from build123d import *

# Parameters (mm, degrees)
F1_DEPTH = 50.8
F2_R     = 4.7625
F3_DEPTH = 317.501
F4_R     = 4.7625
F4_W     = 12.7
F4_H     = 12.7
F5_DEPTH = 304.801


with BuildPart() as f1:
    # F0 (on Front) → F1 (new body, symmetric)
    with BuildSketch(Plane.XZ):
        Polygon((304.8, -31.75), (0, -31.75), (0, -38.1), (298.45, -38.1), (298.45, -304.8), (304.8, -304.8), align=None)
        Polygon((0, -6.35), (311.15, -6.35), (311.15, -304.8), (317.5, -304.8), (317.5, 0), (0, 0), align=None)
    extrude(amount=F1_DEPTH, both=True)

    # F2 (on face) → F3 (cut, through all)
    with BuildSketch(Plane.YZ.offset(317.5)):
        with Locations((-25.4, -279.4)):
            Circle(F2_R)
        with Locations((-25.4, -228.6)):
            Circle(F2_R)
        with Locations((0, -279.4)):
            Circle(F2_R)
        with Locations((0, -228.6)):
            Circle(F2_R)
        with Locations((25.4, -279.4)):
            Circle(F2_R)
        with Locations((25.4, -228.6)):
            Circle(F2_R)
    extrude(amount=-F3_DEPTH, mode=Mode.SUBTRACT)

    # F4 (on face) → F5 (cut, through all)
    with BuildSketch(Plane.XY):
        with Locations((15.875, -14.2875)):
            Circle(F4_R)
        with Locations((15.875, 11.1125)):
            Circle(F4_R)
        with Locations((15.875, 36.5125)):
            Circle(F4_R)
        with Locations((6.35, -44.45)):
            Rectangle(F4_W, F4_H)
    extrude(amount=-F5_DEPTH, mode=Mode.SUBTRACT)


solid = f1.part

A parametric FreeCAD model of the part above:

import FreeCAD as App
import Part
import Sketcher

V = App.Vector
Q = App.Units.Quantity

doc = App.newDocument("Part")
body = doc.addObject("PartDesign::Body", "Body")
body.AllowCompound = True

sketch1 = body.newObject("Sketcher::SketchObject", "Sketch")
sketch1.AttachmentSupport = (doc.getObject("XZ_Plane"), [""])
sketch1.MapMode = "FlatFace"
sketch1.addGeometry(Part.LineSegment(V(304.8, -31.75, 0), V(0, -31.75, 0)), False)
sketch1.addGeometry(Part.LineSegment(V(0, -31.75, 0), V(0, -38.1, 0)), False)
sketch1.addGeometry(Part.LineSegment(V(0, -38.1, 0), V(298.45, -38.1, 0)), False)
sketch1.addGeometry(Part.LineSegment(V(298.45, -38.1, 0), V(298.45, -304.8, 0)), False)
sketch1.addGeometry(Part.LineSegment(V(298.45, -304.8, 0), V(304.8, -304.8, 0)), False)
sketch1.addGeometry(Part.LineSegment(V(304.8, -304.8, 0), V(304.8, -31.75, 0)), False)
sketch1.addGeometry(Part.LineSegment(V(0, -6.35, 0), V(311.15, -6.35, 0)), False)
sketch1.addGeometry(Part.LineSegment(V(311.15, -6.35, 0), V(311.15, -304.8, 0)), False)
sketch1.addGeometry(Part.LineSegment(V(311.15, -304.8, 0), V(317.5, -304.8, 0)), False)
sketch1.addGeometry(Part.LineSegment(V(317.5, -304.8, 0), V(317.5, 0, 0)), False)
sketch1.addGeometry(Part.LineSegment(V(317.5, 0, 0), V(0, 0, 0)), False)
sketch1.addGeometry(Part.LineSegment(V(0, 0, 0), V(0, -6.35, 0)), False)
sketch1.addConstraint(Sketcher.Constraint("Coincident", 0, 2, 1, 1))
sketch1.addConstraint(Sketcher.Constraint("Coincident", 1, 2, 2, 1))
sketch1.addConstraint(Sketcher.Constraint("Coincident", 2, 2, 3, 1))
sketch1.addConstraint(Sketcher.Constraint("Coincident", 3, 2, 4, 1))
sketch1.addConstraint(Sketcher.Constraint("Coincident", 4, 2, 5, 1))
sketch1.addConstraint(Sketcher.Constraint("Coincident", 5, 2, 0, 1))
sketch1.addConstraint(Sketcher.Constraint("Coincident", 6, 2, 7, 1))
sketch1.addConstraint(Sketcher.Constraint("Coincident", 7, 2, 8, 1))
sketch1.addConstraint(Sketcher.Constraint("Coincident", 8, 2, 9, 1))
sketch1.addConstraint(Sketcher.Constraint("Coincident", 9, 2, 10, 1))
sketch1.addConstraint(Sketcher.Constraint("Coincident", 10, 2, 11, 1))
sketch1.addConstraint(Sketcher.Constraint("Coincident", 11, 2, 6, 1))
sketch1.addConstraint(Sketcher.Constraint("Horizontal", 0))
sketch1.addConstraint(Sketcher.Constraint("Vertical", 1))
sketch1.addConstraint(Sketcher.Constraint("Horizontal", 2))
sketch1.addConstraint(Sketcher.Constraint("Vertical", 3))
sketch1.addConstraint(Sketcher.Constraint("Horizontal", 4))
sketch1.addConstraint(Sketcher.Constraint("Vertical", 5))
sketch1.addConstraint(Sketcher.Constraint("Horizontal", 6))
sketch1.addConstraint(Sketcher.Constraint("Vertical", 7))
sketch1.addConstraint(Sketcher.Constraint("Horizontal", 8))
sketch1.addConstraint(Sketcher.Constraint("Vertical", 9))
sketch1.addConstraint(Sketcher.Constraint("Horizontal", 10))
sketch1.addConstraint(Sketcher.Constraint("Vertical", 11))
sketch1.addConstraint(Sketcher.Constraint("Coincident", 10, 2, -1, 1))
sketch1.addConstraint(Sketcher.Constraint("PointOnObject", 0, 2, -2))
sketch1.addConstraint(Sketcher.Constraint("Horizontal", 4, 2, 7, 2))
sketch1.addConstraint(Sketcher.Constraint("Equal", 4, 8))
sketch1.addConstraint(Sketcher.Constraint("Equal", 8, 1))
sketch1.addConstraint(Sketcher.Constraint("Equal", 2, 7))
sketch1.addConstraint(Sketcher.Constraint("Equal", 0, 9))
sketch1.addConstraint(Sketcher.Constraint("DistanceX", 0, 2, 0, 1, Q("12 in")))
sketch1.addConstraint(Sketcher.Constraint("DistanceX", 10, 2, 10, 1, Q("12.5 in")))
sketch1.addConstraint(Sketcher.Constraint("DistanceY", 3, 2, 3, 1, Q("10.5 in")))
sketch1.addConstraint(Sketcher.Constraint("DistanceY", 5, 2, 6, 2, Q("1 in")))
pad1 = body.newObject("PartDesign::Pad", "Pad")
pad1.Profile = sketch1
pad1.Length = Q("4 in")
pad1.Midplane = True

sketch2 = body.newObject("Sketcher::SketchObject", "Sketch001")
sketch2.AttachmentSupport = (doc.getObject("YZ_Plane"), [""])
sketch2.MapMode = "FlatFace"
sketch2.AttachmentOffset = App.Placement(V(0, 0, 12.5 * 25.4), App.Rotation())
sketch2.addGeometry(Part.Circle(V(-25.4, -279.4, 0), V(0, 0, 1), 4.7625), False)
sketch2.addGeometry(Part.Circle(V(-25.4, -228.6, 0), V(0, 0, 1), 4.7625), False)
sketch2.addGeometry(Part.Circle(V(0, -279.4, 0), V(0, 0, 1), 4.7625), False)
sketch2.addGeometry(Part.Circle(V(0, -228.6, 0), V(0, 0, 1), 4.7625), False)
sketch2.addGeometry(Part.Circle(V(25.4, -279.4, 0), V(0, 0, 1), 4.7625), False)
sketch2.addGeometry(Part.Circle(V(25.4, -228.6, 0), V(0, 0, 1), 4.7625), False)
sketch2.addConstraint(Sketcher.Constraint("Equal", 0, 1))
sketch2.addConstraint(Sketcher.Constraint("Equal", 1, 2))
sketch2.addConstraint(Sketcher.Constraint("Equal", 2, 3))
sketch2.addConstraint(Sketcher.Constraint("Equal", 3, 4))
sketch2.addConstraint(Sketcher.Constraint("Equal", 4, 5))
sketch2.addConstraint(Sketcher.Constraint("Symmetric", 0, 3, 4, 3, -2))
sketch2.addConstraint(Sketcher.Constraint("Symmetric", 1, 3, 5, 3, -2))
sketch2.addConstraint(Sketcher.Constraint("PointOnObject", 2, 3, -2))
sketch2.addConstraint(Sketcher.Constraint("PointOnObject", 3, 3, -2))
sketch2.addConstraint(Sketcher.Constraint("Horizontal", 0, 3, 2, 3))
sketch2.addConstraint(Sketcher.Constraint("Horizontal", 1, 3, 3, 3))
sketch2.addConstraint(Sketcher.Constraint("Vertical", 0, 3, 1, 3))
sketch2.addConstraint(Sketcher.Constraint("Diameter", 0, Q("0.375 in")))
sketch2.addConstraint(Sketcher.Constraint("DistanceX", 0, 3, -1, 1, Q("1 in")))
sketch2.addConstraint(Sketcher.Constraint("DistanceY", 0, 3, -1, 1, Q("11 in")))
sketch2.addConstraint(Sketcher.Constraint("DistanceY", 1, 3, -1, 1, Q("9 in")))
pocket1 = body.newObject("PartDesign::Pocket", "Pocket")
pocket1.Profile = sketch2
pocket1.Type = "ThroughAll"

sketch3 = body.newObject("Sketcher::SketchObject", "Sketch002")
sketch3.AttachmentSupport = (doc.getObject("XY_Plane"), [""])
sketch3.MapMode = "FlatFace"
sketch3.addGeometry(Part.Circle(V(15.875, -14.2875, 0), V(0, 0, 1), 4.7625), False)
sketch3.addGeometry(Part.Circle(V(15.875, 11.1125, 0), V(0, 0, 1), 4.7625), False)
sketch3.addGeometry(Part.Circle(V(15.875, 36.5125, 0), V(0, 0, 1), 4.7625), False)
sketch3.addGeometry(Part.LineSegment(V(0, -38.1, 0), V(0, -50.8, 0)), False)
sketch3.addGeometry(Part.LineSegment(V(0, -50.8, 0), V(12.7, -50.8, 0)), False)
sketch3.addGeometry(Part.LineSegment(V(12.7, -50.8, 0), V(12.7, -38.1, 0)), False)
sketch3.addGeometry(Part.LineSegment(V(12.7, -38.1, 0), V(0, -38.1, 0)), False)
sketch3.addConstraint(Sketcher.Constraint("Coincident", 3, 2, 4, 1))
sketch3.addConstraint(Sketcher.Constraint("Coincident", 4, 2, 5, 1))
sketch3.addConstraint(Sketcher.Constraint("Coincident", 5, 2, 6, 1))
sketch3.addConstraint(Sketcher.Constraint("Coincident", 6, 2, 3, 1))
sketch3.addConstraint(Sketcher.Constraint("Vertical", 3))
sketch3.addConstraint(Sketcher.Constraint("Horizontal", 4))
sketch3.addConstraint(Sketcher.Constraint("Vertical", 5))
sketch3.addConstraint(Sketcher.Constraint("Horizontal", 6))
sketch3.addConstraint(Sketcher.Constraint("Equal", 0, 1))
sketch3.addConstraint(Sketcher.Constraint("Equal", 1, 2))
sketch3.addConstraint(Sketcher.Constraint("PointOnObject", 3, 2, -2))
sketch3.addConstraint(Sketcher.Constraint("Vertical", 0, 3, 1, 3))
sketch3.addConstraint(Sketcher.Constraint("Vertical", 1, 3, 2, 3))
sketch3.addConstraint(Sketcher.Constraint("Equal", 6, 3))
sketch3.addConstraint(Sketcher.Constraint("Diameter", 0, Q("0.375 in")))
sketch3.addConstraint(Sketcher.Constraint("DistanceX", 4, 1, 4, 2, Q("0.5 in")))
sketch3.addConstraint(Sketcher.Constraint("DistanceY", 3, 2, -1, 1, Q("2 in")))
sketch3.addConstraint(Sketcher.Constraint("DistanceY", 0, 3, 1, 3, Q("1 in")))
sketch3.addConstraint(Sketcher.Constraint("DistanceY", 1, 3, 2, 3, Q("1 in")))
sketch3.addConstraint(Sketcher.Constraint("DistanceX", -1, 1, 0, 3, Q("0.625 in")))
sketch3.addConstraint(Sketcher.Constraint("DistanceY", 0, 3, -1, 1, Q("0.5625 in")))
pocket2 = body.newObject("PartDesign::Pocket", "Pocket001")
pocket2.Profile = sketch3
pocket2.Type = "ThroughAll"

doc.recompute()
